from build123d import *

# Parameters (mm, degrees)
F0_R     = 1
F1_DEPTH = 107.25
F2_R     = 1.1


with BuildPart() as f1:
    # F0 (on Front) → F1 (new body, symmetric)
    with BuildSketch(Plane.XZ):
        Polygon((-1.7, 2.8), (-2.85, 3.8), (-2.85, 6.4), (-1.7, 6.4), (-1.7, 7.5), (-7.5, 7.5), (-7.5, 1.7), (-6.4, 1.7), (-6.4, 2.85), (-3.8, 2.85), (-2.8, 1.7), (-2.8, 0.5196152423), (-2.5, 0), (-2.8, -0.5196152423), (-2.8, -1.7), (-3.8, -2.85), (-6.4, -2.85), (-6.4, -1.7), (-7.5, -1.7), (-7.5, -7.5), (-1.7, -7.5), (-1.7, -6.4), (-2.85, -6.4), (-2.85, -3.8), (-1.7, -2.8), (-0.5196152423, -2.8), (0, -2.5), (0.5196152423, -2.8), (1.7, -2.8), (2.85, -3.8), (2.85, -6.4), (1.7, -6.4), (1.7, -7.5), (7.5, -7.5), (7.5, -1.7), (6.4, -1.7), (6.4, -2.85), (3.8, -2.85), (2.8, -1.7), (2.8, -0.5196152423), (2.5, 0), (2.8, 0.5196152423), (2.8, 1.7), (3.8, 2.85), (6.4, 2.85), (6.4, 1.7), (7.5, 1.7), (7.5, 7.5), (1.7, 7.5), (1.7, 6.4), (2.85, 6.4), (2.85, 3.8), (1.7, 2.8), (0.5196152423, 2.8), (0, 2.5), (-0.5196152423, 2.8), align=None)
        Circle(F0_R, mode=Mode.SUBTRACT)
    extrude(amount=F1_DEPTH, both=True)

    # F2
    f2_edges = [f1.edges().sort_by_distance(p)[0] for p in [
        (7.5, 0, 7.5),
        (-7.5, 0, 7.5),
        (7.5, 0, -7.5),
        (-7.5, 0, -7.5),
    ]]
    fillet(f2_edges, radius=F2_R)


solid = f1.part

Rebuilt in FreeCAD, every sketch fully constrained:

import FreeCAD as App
import Part
import Sketcher

V = App.Vector
Q = App.Units.Quantity


def edges_at(feature, points):
    """Names of the edges that pass closest to the given points."""
    edges = feature.Shape.Edges
    near = lambda p: min(range(len(edges)), key=lambda i: edges[i].distToShape(Part.Vertex(*p))[0])
    return sorted({f"Edge{near(p) + 1}" for p in points})

doc = App.newDocument("Part")
body = doc.addObject("PartDesign::Body", "Body")

sketch1 = body.newObject("Sketcher::SketchObject", "Sketch")
sketch1.AttachmentSupport = (doc.getObject("XZ_Plane"), [""])
sketch1.MapMode = "FlatFace"
sketch1.addGeometry([
    Part.LineSegment(V(-1.7, 2.8, 0), V(-2.9, 3.8, 0)),
    Part.LineSegment(V(-2.9, 3.8, 0), V(-2.9, 6.4, 0)),
    Part.LineSegment(V(-2.9, 6.4, 0), V(-1.7, 6.4, 0)),
    Part.LineSegment(V(-1.7, 6.4, 0), V(-1.7, 7.5, 0)),
    Part.LineSegment(V(-1.7, 7.5, 0), V(-7.5, 7.5, 0)),
    Part.LineSegment(V(-7.5, 7.5, 0), V(-7.5, 1.7, 0)),
    Part.LineSegment(V(-7.5, 1.7, 0), V(-6.4, 1.7, 0)),
    Part.LineSegment(V(-6.4, 1.7, 0), V(-6.4, 2.9, 0)),
    Part.LineSegment(V(-6.4, 2.9, 0), V(-3.8, 2.9, 0)),
    Part.LineSegment(V(-3.8, 2.9, 0), V(-2.8, 1.7, 0)),
    Part.LineSegment(V(-2.8, 1.7, 0), V(-2.8, 0.5, 0)),
    Part.LineSegment(V(-2.8, 0.5, 0), V(-2.5, 0, 0)),
    Part.LineSegment(V(-2.5, 0, 0), V(-2.8, -0.5, 0)),
    Part.LineSegment(V(-2.8, -0.5, 0), V(-2.8, -1.7, 0)),
    Part.LineSegment(V(-2.8, -1.7, 0), V(-3.8, -2.9, 0)),
    Part.LineSegment(V(-3.8, -2.9, 0), V(-6.4, -2.9, 0)),
    Part.LineSegment(V(-6.4, -2.9, 0), V(-6.4, -1.7, 0)),
    Part.LineSegment(V(-6.4, -1.7, 0), V(-7.5, -1.7, 0)),
    Part.LineSegment(V(-7.5, -1.7, 0), V(-7.5, -7.5, 0)),
    Part.LineSegment(V(-7.5, -7.5, 0), V(-1.7, -7.5, 0)),
    Part.LineSegment(V(-1.7, -7.5, 0), V(-1.7, -6.4, 0)),
    Part.LineSegment(V(-1.7, -6.4, 0), V(-2.9, -6.4, 0)),
    Part.LineSegment(V(-2.9, -6.4, 0), V(-2.9, -3.8, 0)),
    Part.LineSegment(V(-2.9, -3.8, 0), V(-1.7, -2.8, 0)),
    Part.LineSegment(V(-1.7, -2.8, 0), V(-0.5, -2.8, 0)),
    Part.LineSegment(V(-0.5, -2.8, 0), V(0, -2.5, 0)),
    Part.LineSegment(V(0, -2.5, 0), V(0.5, -2.8, 0)),
    Part.LineSegment(V(0.5, -2.8, 0), V(1.7, -2.8, 0)),
    Part.LineSegment(V(1.7, -2.8, 0), V(2.9, -3.8, 0)),
    Part.LineSegment(V(2.9, -3.8, 0), V(2.9, -6.4, 0)),
    Part.LineSegment(V(2.9, -6.4, 0), V(1.7, -6.4, 0)),
    Part.LineSegment(V(1.7, -6.4, 0), V(1.7, -7.5, 0)),
    Part.LineSegment(V(1.7, -7.5, 0), V(7.5, -7.5, 0)),
    Part.LineSegment(V(7.5, -7.5, 0), V(7.5, -1.7, 0)),
    Part.LineSegment(V(7.5, -1.7, 0), V(6.4, -1.7, 0)),
    Part.LineSegment(V(6.4, -1.7, 0), V(6.4, -2.9, 0)),
    Part.LineSegment(V(6.4, -2.9, 0), V(3.8, -2.9, 0)),
    Part.LineSegment(V(3.8, -2.9, 0), V(2.8, -1.7, 0)),
    Part.LineSegment(V(2.8, -1.7, 0), V(2.8, -0.5, 0)),
    Part.LineSegment(V(2.8, -0.5, 0), V(2.5, 0, 0)),
    Part.LineSegment(V(2.5, 0, 0), V(2.8, 0.5, 0)),
    Part.LineSegment(V(2.8, 0.5, 0), V(2.8, 1.7, 0)),
    Part.LineSegment(V(2.8, 1.7, 0), V(3.8, 2.9, 0)),
    Part.LineSegment(V(3.8, 2.9, 0), V(6.4, 2.9, 0)),
    Part.LineSegment(V(6.4, 2.9, 0), V(6.4, 1.7, 0)),
    Part.LineSegment(V(6.4, 1.7, 0), V(7.5, 1.7, 0)),
    Part.LineSegment(V(7.5, 1.7, 0), V(7.5, 7.5, 0)),
    Part.LineSegment(V(7.5, 7.5, 0), V(1.7, 7.5, 0)),
    Part.LineSegment(V(1.7, 7.5, 0), V(1.7, 6.4, 0)),
    Part.LineSegment(V(1.7, 6.4, 0), V(2.9, 6.4, 0)),
    Part.LineSegment(V(2.9, 6.4, 0), V(2.9, 3.8, 0)),
    Part.LineSegment(V(2.9, 3.8, 0), V(1.7, 2.8, 0)),
    Part.LineSegment(V(1.7, 2.8, 0), V(0.5, 2.8, 0)),
    Part.LineSegment(V(0.5, 2.8, 0), V(0, 2.5, 0)),
    Part.LineSegment(V(0, 2.5, 0), V(-0.5, 2.8, 0)),
    Part.LineSegment(V(-0.5, 2.8, 0), V(-1.7, 2.8, 0)),
    Part.Circle(V(0, 0, 0), V(0, 0, 1), 1),
], False)
sketch1.addConstraint([
    Sketcher.Constraint("Coincident", 0, 2, 1, 1),
    Sketcher.Constraint("Coincident", 1, 2, 2, 1),
    Sketcher.Constraint("Coincident", 2, 2, 3, 1),
    Sketcher.Constraint("Coincident", 3, 2, 4, 1),
    Sketcher.Constraint("Coincident", 4, 2, 5, 1),
    Sketcher.Constraint("Coincident", 5, 2, 6, 1),
    Sketcher.Constraint("Coincident", 6, 2, 7, 1),
    Sketcher.Constraint("Coincident", 7, 2, 8, 1),
    Sketcher.Constraint("Coincident", 8, 2, 9, 1),
    Sketcher.Constraint("Coincident", 9, 2, 10, 1),
    Sketcher.Constraint("Coincident", 10, 2, 11, 1),
    Sketcher.Constraint("Coincident", 11, 2, 12, 1),
    Sketcher.Constraint("Coincident", 12, 2, 13, 1),
    Sketcher.Constraint("Coincident", 13, 2, 14, 1),
    Sketcher.Constraint("Coincident", 14, 2, 15, 1),
    Sketcher.Constraint("Coincident", 15, 2, 16, 1),
    Sketcher.Constraint("Coincident", 16, 2, 17, 1),
    Sketcher.Constraint("Coincident", 17, 2, 18, 1),
    Sketcher.Constraint("Coincident", 18, 2, 19, 1),
    Sketcher.Constraint("Coincident", 19, 2, 20, 1),
    Sketcher.Constraint("Coincident", 20, 2, 21, 1),
    Sketcher.Constraint("Coincident", 21, 2, 22, 1),
    Sketcher.Constraint("Coincident", 22, 2, 23, 1),
    Sketcher.Constraint("Coincident", 23, 2, 24, 1),
    Sketcher.Constraint("Coincident", 24, 2, 25, 1),
    Sketcher.Constraint("Coincident", 25, 2, 26, 1),
    Sketcher.Constraint("Coincident", 26, 2, 27, 1),
    Sketcher.Constraint("Coincident", 27, 2, 28, 1),
    Sketcher.Constraint("Coincident", 28, 2, 29, 1),
    Sketcher.Constraint("Coincident", 29, 2, 30, 1),
    Sketcher.Constraint("Coincident", 30, 2, 31, 1),
    Sketcher.Constraint("Coincident", 31, 2, 32, 1),
    Sketcher.Constraint("Coincident", 32, 2, 33, 1),
    Sketcher.Constraint("Coincident", 33, 2, 34, 1),
    Sketcher.Constraint("Coincident", 34, 2, 35, 1),
    Sketcher.Constraint("Coincident", 35, 2, 36, 1),
    Sketcher.Constraint("Coincident", 36, 2, 37, 1),
    Sketcher.Constraint("Coincident", 37, 2, 38, 1),
    Sketcher.Constraint("Coincident", 38, 2, 39, 1),
    Sketcher.Constraint("Coincident", 39, 2, 40, 1),
    Sketcher.Constraint("Coincident", 40, 2, 41, 1),
    Sketcher.Constraint("Coincident", 41, 2, 42, 1),
    Sketcher.Constraint("Coincident", 42, 2, 43, 1),
    Sketcher.Constraint("Coincident", 43, 2, 44, 1),
    Sketcher.Constraint("Coincident", 44, 2, 45, 1),
    Sketcher.Constraint("Coincident", 45, 2, 46, 1),
    Sketcher.Constraint("Coincident", 46, 2, 47, 1),
    Sketcher.Constraint("Coincident", 47, 2, 48, 1),
    Sketcher.Constraint("Coincident", 48, 2, 49, 1),
    Sketcher.Constraint("Coincident", 49, 2, 50, 1),
    Sketcher.Constraint("Coincident", 50, 2, 51, 1),
    Sketcher.Constraint("Coincident", 51, 2, 52, 1),
    Sketcher.Constraint("Coincident", 52, 2, 53, 1),
    Sketcher.Constraint("Coincident", 53, 2, 54, 1),
    Sketcher.Constraint("Coincident", 54, 2, 55, 1),
    Sketcher.Constraint("Coincident", 55, 2, 0, 1),
    Sketcher.Constraint("Vertical", 1),
    Sketcher.Constraint("Horizontal", 2),
    Sketcher.Constraint("Vertical", 3),
    Sketcher.Constraint("Horizontal", 4),
    Sketcher.Constraint("Vertical", 5),
    Sketcher.Constraint("Horizontal", 6),
    Sketcher.Constraint("Vertical", 7),
    Sketcher.Constraint("Horizontal", 8),
    Sketcher.Constraint("Vertical", 10),
    Sketcher.Constraint("Vertical", 13),
    Sketcher.Constraint("Horizontal", 15),
    Sketcher.Constraint("Vertical", 16),
    Sketcher.Constraint("Horizontal", 17),
    Sketcher.Constraint("Vertical", 18),
    Sketcher.Constraint("Horizontal", 19),
    Sketcher.Constraint("Vertical", 20),
    Sketcher.Constraint("Horizontal", 21),
    Sketcher.Constraint("Vertical", 22),
    Sketcher.Constraint("Horizontal", 24),
    Sketcher.Constraint("Horizontal", 27),
    Sketcher.Constraint("Vertical", 29),
    Sketcher.Constraint("Horizontal", 30),
    Sketcher.Constraint("Vertical", 31),
    Sketcher.Constraint("Horizontal", 32),
    Sketcher.Constraint("Vertical", 33),
    Sketcher.Constraint("Horizontal", 34),
    Sketcher.Constraint("Vertical", 35),
    Sketcher.Constraint("Horizontal", 36),
    Sketcher.Constraint("Vertical", 38),
    Sketcher.Constraint("Vertical", 41),
    Sketcher.Constraint("Horizontal", 43),
    Sketcher.Constraint("Vertical", 44),
    Sketcher.Constraint("Horizontal", 45),
    Sketcher.Constraint("Vertical", 46),
    Sketcher.Constraint("Horizontal", 47),
    Sketcher.Constraint("Vertical", 48),
    Sketcher.Constraint("Horizontal", 49),
    Sketcher.Constraint("Vertical", 50),
    Sketcher.Constraint("Horizontal", 52),
    Sketcher.Constraint("Horizontal", 55),
    Sketcher.Constraint("Coincident", 56, 3, -1, 1),
    Sketcher.Constraint("Symmetric", 0, 2, 28, 2, -1, 1),
    Sketcher.Constraint("Symmetric", 2, 2, 30, 2, -1, 1),
    Sketcher.Constraint("Symmetric", 4, 2, 32, 2, -1, 1),
    Sketcher.Constraint("Symmetric", 6, 2, 34, 2, -1, 1),
    Sketcher.Constraint("Symmetric", 8, 2, 36, 2, -1, 1),
    Sketcher.Constraint("Symmetric", 9, 2, 37, 2, -1, 1),
    Sketcher.Constraint("Symmetric", 11, 2, 39, 2, -1, 1),
    Sketcher.Constraint("Symmetric", 12, 2, 40, 2, -1, 1),
    Sketcher.Constraint("Symmetric", 14, 2, 42, 2, -1, 1),
    Sketcher.Constraint("Symmetric", 16, 2, 44, 2, -1, 1),
    Sketcher.Constraint("Symmetric", 18, 2, 46, 2, -1, 1),
    Sketcher.Constraint("Symmetric", 20, 2, 48, 2, -1, 1),
    Sketcher.Constraint("Symmetric", 22, 2, 50, 2, -1, 1),
    Sketcher.Constraint("Symmetric", 23, 2, 51, 2, -1, 1),
    Sketcher.Constraint("Symmetric", 25, 2, 53, 2, -1, 1),
    Sketcher.Constraint("Symmetric", 26, 2, 54, 2, -1, 1),
    Sketcher.Constraint("Symmetric", 24, 2, 26, 2, -2),
    Sketcher.Constraint("Symmetric", 22, 2, 28, 2, -2),
    Sketcher.Constraint("Symmetric", 20, 2, 30, 2, -2),
    Sketcher.Constraint("Symmetric", 18, 2, 32, 2, -2),
    Sketcher.Constraint("Symmetric", 16, 2, 34, 2, -2),
    Sketcher.Constraint("Symmetric", 14, 2, 36, 2, -2),
    Sketcher.Constraint("Symmetric", 13, 2, 37, 2, -2),
    Sketcher.Constraint("PointOnObject", 11, 2, -1),
    Sketcher.Constraint("PointOnObject", 25, 2, -2),
    Sketcher.Constraint("Perpendicular", 0, 14),
    Sketcher.Constraint("Perpendicular", 9, 23),
    Sketcher.Constraint("Perpendicular", 11, 25),
    Sketcher.Constraint("Perpendicular", 12, 26),
    Sketcher.Constraint("Perpendicular", 14, 28),
    Sketcher.Constraint("Perpendicular", 25, 39),
    Sketcher.Constraint("Perpendicular", 28, 42),
    Sketcher.Constraint("Perpendicular", 39, 53),
    Sketcher.Constraint("Horizontal", 6, 2, 9, 2),
    Sketcher.Constraint("Vertical", 20, 2, 23, 2),
    Sketcher.Constraint("Equal", 43, 1),
    Sketcher.Constraint("Equal", 45, 3),
    Sketcher.Constraint("Equal", 47, 5),
    Sketcher.Constraint("Equal", 49, 7),
    Sketcher.Constraint("Equal", 55, 10),
    Sketcher.Constraint("Equal", 12, 25),
    Sketcher.Constraint("Diameter", 56, 2.0),
    Sketcher.Constraint("Angle", 11, Q("-60 deg")),
    Sketcher.Constraint("DistanceX", 4, 2, 4, 1, 5.8),
    Sketcher.Constraint("DistanceX", 6, 1, 6, 2, 1.1),
    Sketcher.Constraint("DistanceX", 8, 1, 8, 2, 2.6),
    Sketcher.Constraint("DistanceX", 8, 2, 9, 2, 1.0),
    Sketcher.Constraint("Distance", 11, 0.6),
    Sketcher.Constraint("DistanceX", 2, 1, 2, 2, 1.15),
    Sketcher.Constraint("DistanceY", -1, 1, 0, 2, 3.8),
])
pad1 = body.newObject("PartDesign::Pad", "Pad")
pad1.Profile = sketch1
pad1.Length = 214.5
pad1.Midplane = True
doc.recompute()

fillet = body.newObject("PartDesign::Fillet", "Fillet")
fillet.Base = (pad1, edges_at(pad1, [
    (7.5, 0, 7.5),
    (-7.5, 0, 7.5),
    (7.5, 0, -7.5),
    (-7.5, 0, -7.5),
]))
fillet.Radius = 1.1

doc.recompute()
